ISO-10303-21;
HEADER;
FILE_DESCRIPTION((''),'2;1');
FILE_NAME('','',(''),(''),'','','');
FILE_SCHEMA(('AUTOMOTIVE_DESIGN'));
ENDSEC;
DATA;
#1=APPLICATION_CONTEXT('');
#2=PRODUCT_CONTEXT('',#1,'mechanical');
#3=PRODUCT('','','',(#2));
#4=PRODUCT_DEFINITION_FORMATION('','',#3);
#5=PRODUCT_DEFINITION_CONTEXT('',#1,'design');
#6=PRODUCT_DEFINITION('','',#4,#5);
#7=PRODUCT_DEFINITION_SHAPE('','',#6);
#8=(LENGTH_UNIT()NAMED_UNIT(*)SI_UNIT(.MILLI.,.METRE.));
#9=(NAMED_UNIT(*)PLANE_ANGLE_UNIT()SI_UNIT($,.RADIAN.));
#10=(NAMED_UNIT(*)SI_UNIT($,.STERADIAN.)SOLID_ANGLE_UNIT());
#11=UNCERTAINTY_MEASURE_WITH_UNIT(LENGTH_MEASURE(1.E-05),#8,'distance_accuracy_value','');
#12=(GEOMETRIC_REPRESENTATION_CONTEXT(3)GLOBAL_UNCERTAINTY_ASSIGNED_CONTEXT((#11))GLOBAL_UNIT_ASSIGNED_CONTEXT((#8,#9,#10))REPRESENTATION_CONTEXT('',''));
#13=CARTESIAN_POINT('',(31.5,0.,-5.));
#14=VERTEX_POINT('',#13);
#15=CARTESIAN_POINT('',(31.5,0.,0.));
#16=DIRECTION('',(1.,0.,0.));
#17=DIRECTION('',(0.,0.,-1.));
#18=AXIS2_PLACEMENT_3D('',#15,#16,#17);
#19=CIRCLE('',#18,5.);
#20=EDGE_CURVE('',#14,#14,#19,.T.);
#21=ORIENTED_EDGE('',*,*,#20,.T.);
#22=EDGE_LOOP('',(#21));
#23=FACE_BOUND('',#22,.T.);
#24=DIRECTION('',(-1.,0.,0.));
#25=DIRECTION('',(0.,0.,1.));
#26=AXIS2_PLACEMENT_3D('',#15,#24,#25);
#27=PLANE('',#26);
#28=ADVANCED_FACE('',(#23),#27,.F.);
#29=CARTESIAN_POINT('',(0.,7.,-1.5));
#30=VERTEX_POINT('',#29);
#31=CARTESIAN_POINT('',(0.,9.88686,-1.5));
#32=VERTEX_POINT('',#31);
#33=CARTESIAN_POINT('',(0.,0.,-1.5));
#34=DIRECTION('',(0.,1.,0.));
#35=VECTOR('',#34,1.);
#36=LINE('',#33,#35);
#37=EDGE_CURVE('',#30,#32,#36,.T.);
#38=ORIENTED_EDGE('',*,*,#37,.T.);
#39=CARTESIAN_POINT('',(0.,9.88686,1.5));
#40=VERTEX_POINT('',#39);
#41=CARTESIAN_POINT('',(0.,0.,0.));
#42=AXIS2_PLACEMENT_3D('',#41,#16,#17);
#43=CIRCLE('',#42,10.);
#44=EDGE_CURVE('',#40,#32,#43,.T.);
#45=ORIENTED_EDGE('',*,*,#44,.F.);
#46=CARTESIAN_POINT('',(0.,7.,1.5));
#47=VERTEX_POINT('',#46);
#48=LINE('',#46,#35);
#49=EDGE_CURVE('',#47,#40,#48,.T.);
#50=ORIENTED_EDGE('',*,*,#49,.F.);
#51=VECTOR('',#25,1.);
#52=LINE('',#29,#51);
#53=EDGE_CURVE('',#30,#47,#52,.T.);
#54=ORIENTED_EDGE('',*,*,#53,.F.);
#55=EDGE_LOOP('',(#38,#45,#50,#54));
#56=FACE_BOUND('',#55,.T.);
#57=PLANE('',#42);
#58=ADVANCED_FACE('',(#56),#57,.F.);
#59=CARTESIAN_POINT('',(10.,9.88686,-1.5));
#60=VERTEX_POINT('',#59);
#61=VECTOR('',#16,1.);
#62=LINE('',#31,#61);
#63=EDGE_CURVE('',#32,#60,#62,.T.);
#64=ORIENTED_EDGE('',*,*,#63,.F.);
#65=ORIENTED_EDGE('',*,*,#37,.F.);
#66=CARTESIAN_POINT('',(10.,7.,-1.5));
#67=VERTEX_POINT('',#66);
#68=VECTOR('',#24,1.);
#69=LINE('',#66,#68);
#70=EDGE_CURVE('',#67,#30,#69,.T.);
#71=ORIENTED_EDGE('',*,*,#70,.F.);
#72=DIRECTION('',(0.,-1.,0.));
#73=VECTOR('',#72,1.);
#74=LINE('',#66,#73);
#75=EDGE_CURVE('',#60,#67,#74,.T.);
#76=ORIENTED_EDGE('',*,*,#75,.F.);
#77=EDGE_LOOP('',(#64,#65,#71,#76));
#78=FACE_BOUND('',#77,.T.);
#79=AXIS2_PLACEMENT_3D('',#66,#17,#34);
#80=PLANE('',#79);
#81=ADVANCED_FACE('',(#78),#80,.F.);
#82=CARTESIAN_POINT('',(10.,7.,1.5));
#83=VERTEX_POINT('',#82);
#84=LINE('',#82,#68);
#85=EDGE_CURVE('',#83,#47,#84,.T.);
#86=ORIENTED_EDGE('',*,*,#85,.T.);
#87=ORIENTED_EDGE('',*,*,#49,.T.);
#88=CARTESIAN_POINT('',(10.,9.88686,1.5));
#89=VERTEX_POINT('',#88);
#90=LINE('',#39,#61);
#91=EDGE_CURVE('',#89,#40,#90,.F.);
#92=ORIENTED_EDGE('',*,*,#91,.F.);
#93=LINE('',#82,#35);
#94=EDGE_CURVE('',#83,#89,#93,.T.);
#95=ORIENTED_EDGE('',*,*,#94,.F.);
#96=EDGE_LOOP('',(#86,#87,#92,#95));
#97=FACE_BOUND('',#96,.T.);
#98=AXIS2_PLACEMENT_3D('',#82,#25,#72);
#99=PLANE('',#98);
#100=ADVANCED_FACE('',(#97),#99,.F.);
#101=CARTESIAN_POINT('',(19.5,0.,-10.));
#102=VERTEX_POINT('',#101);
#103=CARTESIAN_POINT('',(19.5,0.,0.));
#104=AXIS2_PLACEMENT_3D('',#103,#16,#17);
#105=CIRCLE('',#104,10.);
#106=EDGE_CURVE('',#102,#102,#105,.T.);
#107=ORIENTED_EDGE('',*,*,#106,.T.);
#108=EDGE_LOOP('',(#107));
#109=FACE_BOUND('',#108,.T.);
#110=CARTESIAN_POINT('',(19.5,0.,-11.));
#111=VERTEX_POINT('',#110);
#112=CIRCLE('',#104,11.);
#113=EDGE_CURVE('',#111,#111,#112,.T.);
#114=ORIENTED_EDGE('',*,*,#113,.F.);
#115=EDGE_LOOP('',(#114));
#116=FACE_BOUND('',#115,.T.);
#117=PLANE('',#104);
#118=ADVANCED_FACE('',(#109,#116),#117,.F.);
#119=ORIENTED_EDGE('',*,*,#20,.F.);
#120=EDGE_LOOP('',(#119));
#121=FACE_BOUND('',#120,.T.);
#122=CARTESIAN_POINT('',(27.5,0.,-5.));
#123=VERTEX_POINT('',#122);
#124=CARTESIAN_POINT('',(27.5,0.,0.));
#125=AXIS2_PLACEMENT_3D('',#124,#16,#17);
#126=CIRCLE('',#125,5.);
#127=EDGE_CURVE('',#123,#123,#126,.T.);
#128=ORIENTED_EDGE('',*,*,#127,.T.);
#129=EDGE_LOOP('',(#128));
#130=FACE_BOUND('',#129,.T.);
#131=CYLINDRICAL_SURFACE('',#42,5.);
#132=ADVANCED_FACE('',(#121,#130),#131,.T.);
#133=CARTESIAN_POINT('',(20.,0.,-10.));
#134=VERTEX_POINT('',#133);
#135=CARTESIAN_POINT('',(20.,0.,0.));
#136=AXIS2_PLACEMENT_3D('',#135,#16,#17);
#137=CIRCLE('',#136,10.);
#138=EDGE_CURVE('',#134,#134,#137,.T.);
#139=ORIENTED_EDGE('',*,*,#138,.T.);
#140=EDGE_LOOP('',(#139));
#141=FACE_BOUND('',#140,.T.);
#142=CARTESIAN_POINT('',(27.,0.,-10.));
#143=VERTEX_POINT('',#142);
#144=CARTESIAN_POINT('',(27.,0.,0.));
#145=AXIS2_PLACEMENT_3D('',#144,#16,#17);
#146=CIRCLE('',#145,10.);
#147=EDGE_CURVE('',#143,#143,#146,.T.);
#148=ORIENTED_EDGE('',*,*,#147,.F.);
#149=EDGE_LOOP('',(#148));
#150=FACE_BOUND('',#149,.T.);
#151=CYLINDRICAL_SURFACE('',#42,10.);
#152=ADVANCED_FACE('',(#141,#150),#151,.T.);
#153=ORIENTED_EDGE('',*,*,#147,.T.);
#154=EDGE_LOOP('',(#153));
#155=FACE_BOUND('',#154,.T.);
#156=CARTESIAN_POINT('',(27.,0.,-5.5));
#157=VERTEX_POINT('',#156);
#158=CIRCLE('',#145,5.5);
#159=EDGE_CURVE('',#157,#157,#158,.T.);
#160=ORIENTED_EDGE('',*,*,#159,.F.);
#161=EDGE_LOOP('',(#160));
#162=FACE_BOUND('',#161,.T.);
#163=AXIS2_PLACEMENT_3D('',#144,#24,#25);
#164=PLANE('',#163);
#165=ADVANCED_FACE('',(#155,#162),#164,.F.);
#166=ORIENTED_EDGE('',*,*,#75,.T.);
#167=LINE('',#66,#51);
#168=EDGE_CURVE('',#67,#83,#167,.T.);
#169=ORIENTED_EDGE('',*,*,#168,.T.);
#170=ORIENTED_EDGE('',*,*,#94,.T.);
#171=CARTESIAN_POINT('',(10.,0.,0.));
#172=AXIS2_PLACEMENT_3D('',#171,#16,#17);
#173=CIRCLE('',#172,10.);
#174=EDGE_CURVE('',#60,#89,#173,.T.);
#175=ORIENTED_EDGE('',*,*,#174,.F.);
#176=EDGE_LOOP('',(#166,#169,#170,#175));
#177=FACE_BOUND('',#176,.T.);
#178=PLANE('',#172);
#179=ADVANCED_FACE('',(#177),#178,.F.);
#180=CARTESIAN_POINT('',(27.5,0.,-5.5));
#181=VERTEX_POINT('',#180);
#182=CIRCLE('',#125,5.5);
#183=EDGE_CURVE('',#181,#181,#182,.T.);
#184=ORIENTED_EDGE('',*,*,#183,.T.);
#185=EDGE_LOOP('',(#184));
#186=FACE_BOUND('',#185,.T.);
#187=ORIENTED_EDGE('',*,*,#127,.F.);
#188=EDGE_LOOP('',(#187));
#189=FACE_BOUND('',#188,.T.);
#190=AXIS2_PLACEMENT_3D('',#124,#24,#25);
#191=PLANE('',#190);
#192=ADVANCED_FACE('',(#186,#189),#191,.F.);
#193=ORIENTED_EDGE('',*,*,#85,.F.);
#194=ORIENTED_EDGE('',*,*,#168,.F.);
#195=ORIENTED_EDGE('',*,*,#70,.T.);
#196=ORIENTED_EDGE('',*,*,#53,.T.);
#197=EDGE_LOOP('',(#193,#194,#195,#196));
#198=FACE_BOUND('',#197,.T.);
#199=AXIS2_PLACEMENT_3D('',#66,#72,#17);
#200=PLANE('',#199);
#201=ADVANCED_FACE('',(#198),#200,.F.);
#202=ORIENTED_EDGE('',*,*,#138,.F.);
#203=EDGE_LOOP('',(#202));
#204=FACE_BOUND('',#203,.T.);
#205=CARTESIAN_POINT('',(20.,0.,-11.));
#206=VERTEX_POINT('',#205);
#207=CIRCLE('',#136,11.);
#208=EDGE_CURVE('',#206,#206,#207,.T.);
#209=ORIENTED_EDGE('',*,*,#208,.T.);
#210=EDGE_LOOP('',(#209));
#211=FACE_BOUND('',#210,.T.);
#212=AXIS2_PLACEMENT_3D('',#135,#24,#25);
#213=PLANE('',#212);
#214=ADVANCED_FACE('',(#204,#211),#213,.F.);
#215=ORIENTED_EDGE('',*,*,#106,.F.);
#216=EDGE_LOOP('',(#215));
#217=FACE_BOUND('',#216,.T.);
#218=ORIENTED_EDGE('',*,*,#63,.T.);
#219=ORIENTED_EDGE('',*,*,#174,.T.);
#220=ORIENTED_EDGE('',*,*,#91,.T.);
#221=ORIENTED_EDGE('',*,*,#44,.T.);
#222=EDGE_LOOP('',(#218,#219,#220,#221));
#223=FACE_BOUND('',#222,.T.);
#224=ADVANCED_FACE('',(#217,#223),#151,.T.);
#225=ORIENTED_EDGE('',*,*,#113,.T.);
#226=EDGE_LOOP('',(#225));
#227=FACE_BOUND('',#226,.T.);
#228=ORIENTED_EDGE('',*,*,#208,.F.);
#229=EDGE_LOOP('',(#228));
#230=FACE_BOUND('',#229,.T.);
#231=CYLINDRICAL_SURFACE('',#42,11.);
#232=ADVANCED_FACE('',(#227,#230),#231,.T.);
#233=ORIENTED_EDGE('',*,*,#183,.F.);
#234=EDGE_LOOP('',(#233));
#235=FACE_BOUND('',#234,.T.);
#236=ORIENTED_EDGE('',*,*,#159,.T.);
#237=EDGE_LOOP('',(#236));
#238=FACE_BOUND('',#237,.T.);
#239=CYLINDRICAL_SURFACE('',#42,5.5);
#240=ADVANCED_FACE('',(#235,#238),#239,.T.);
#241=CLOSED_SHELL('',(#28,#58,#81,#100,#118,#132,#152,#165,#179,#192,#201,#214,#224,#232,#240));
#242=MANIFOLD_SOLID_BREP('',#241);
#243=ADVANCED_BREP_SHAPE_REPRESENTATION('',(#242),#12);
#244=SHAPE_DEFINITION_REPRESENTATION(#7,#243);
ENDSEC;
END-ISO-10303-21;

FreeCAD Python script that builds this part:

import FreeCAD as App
import Part
import Sketcher
from FreeCAD import Vector
Q = App.Units.Quantity

doc = App.newDocument("Part")
body = doc.addObject("PartDesign::Body", "Body")

sketch1 = body.newObject("Sketcher::SketchObject", "Sketch")
sketch1.AttachmentSupport = (doc.getObject("XY_Plane"), [""])
sketch1.MapMode = "FlatFace"
sketch1.addGeometry([
    Part.LineSegment(Vector(0, 0, 0), Vector(31.5, 0, 0)),
    Part.LineSegment(Vector(31.5, 0, 0), Vector(31.5, 5, 0)),
    Part.LineSegment(Vector(31.5, 5, 0), Vector(27.5, 5, 0)),
    Part.LineSegment(Vector(27.5, 5, 0), Vector(27.5, 5.5, 0)),
    Part.LineSegment(Vector(27.5, 5.5, 0), Vector(27, 5.5, 0)),
    Part.LineSegment(Vector(27, 5.5, 0), Vector(27, 10, 0)),
    Part.LineSegment(Vector(27, 10, 0), Vector(20, 10, 0)),
    Part.LineSegment(Vector(20, 10, 0), Vector(20, 11, 0)),
    Part.LineSegment(Vector(20, 11, 0), Vector(19.5, 11, 0)),
    Part.LineSegment(Vector(19.5, 11, 0), Vector(19.5, 10, 0)),
    Part.LineSegment(Vector(19.5, 10, 0), Vector(0, 10, 0)),
    Part.LineSegment(Vector(0, 10, 0), Vector(0, 0, 0)),
], False)
sketch1.addConstraint([
    Sketcher.Constraint("Coincident", 0, 2, 1, 1),
    Sketcher.Constraint("Coincident", 1, 2, 2, 1),
    Sketcher.Constraint("Coincident", 2, 2, 3, 1),
    Sketcher.Constraint("Coincident", 3, 2, 4, 1),
    Sketcher.Constraint("Coincident", 4, 2, 5, 1),
    Sketcher.Constraint("Coincident", 5, 2, 6, 1),
    Sketcher.Constraint("Coincident", 6, 2, 7, 1),
    Sketcher.Constraint("Coincident", 7, 2, 8, 1),
    Sketcher.Constraint("Coincident", 8, 2, 9, 1),
    Sketcher.Constraint("Coincident", 9, 2, 10, 1),
    Sketcher.Constraint("Coincident", 10, 2, 11, 1),
    Sketcher.Constraint("Coincident", 11, 2, 0, 1),
    Sketcher.Constraint("Horizontal", 0),
    Sketcher.Constraint("Vertical", 1),
    Sketcher.Constraint("Horizontal", 2),
    Sketcher.Constraint("Vertical", 3),
    Sketcher.Constraint("Horizontal", 4),
    Sketcher.Constraint("Vertical", 5),
    Sketcher.Constraint("Horizontal", 6),
    Sketcher.Constraint("Vertical", 7),
    Sketcher.Constraint("Horizontal", 8),
    Sketcher.Constraint("Vertical", 9),
    Sketcher.Constraint("Horizontal", 10),
    Sketcher.Constraint("Vertical", 11),
    Sketcher.Constraint("Coincident", 11, 2, -1, 1),
    Sketcher.Constraint("Horizontal", 6, 2, 9, 2),
    Sketcher.Constraint("Equal", 4, 8),
    Sketcher.Constraint("Equal", 8, 3),
    Sketcher.Constraint("DistanceX", 2, 2, 2, 1, Q("4 mm")),
    Sketcher.Constraint("DistanceX", 6, 2, 6, 1, Q("7 mm")),
    Sketcher.Constraint("DistanceY", 1, 1, 1, 2, Q("5 mm")),
    Sketcher.Constraint("DistanceY", 7, 1, 7, 2, Q("1 mm")),
    Sketcher.Constraint("DistanceY", 11, 2, 11, 1, Q("10 mm")),
    Sketcher.Constraint("DistanceX", 0, 1, 0, 2, Q("31.5 mm")),
    Sketcher.Constraint("DistanceX", 4, 2, 4, 1, Q("0.5 mm")),
])
revolution = body.newObject("PartDesign::Revolution", "Revolution")
revolution.Profile = sketch1
revolution.ReferenceAxis = (sketch1, ["H_Axis"])
revolution.Angle = 360

sketch2 = body.newObject("Sketcher::SketchObject", "Sketch001")
sketch2.AttachmentSupport = (doc.getObject("YZ_Plane"), [""])
sketch2.MapMode = "FlatFace"
sketch2.addGeometry([
    Part.LineSegment(Vector(13, -1.5, 0), Vector(7, -1.5, 0)),
    Part.LineSegment(Vector(7, -1.5, 0), Vector(7, 1.5, 0)),
    Part.LineSegment(Vector(7, 1.5, 0), Vector(13, 1.5, 0)),
    Part.LineSegment(Vector(13, 1.5, 0), Vector(13, -1.5, 0)),
], False)
sketch2.addConstraint([
    Sketcher.Constraint("Coincident", 0, 2, 1, 1),
    Sketcher.Constraint("Coincident", 1, 2, 2, 1),
    Sketcher.Constraint("Coincident", 2, 2, 3, 1),
    Sketcher.Constraint("Coincident", 3, 2, 0, 1),
    Sketcher.Constraint("Horizontal", 0),
    Sketcher.Constraint("Vertical", 1),
    Sketcher.Constraint("Horizontal", 2),
    Sketcher.Constraint("Vertical", 3),
    Sketcher.Constraint("DistanceX", 0, 2, 0, 1, Q("6 mm")),
    Sketcher.Constraint("DistanceY", 1, 1, 1, 2, Q("3 mm")),
    Sketcher.Constraint("DistanceX", -1, 1, 0, 2, Q("7 mm")),
    Sketcher.Constraint("DistanceY", 0, 2, -1, 1, Q("1.5 mm")),
])
pocket1 = body.newObject("PartDesign::Pocket", "Pocket")
pocket1.Profile = sketch2
pocket1.Length = 10
pocket1.Reversed = True

doc.recompute()
